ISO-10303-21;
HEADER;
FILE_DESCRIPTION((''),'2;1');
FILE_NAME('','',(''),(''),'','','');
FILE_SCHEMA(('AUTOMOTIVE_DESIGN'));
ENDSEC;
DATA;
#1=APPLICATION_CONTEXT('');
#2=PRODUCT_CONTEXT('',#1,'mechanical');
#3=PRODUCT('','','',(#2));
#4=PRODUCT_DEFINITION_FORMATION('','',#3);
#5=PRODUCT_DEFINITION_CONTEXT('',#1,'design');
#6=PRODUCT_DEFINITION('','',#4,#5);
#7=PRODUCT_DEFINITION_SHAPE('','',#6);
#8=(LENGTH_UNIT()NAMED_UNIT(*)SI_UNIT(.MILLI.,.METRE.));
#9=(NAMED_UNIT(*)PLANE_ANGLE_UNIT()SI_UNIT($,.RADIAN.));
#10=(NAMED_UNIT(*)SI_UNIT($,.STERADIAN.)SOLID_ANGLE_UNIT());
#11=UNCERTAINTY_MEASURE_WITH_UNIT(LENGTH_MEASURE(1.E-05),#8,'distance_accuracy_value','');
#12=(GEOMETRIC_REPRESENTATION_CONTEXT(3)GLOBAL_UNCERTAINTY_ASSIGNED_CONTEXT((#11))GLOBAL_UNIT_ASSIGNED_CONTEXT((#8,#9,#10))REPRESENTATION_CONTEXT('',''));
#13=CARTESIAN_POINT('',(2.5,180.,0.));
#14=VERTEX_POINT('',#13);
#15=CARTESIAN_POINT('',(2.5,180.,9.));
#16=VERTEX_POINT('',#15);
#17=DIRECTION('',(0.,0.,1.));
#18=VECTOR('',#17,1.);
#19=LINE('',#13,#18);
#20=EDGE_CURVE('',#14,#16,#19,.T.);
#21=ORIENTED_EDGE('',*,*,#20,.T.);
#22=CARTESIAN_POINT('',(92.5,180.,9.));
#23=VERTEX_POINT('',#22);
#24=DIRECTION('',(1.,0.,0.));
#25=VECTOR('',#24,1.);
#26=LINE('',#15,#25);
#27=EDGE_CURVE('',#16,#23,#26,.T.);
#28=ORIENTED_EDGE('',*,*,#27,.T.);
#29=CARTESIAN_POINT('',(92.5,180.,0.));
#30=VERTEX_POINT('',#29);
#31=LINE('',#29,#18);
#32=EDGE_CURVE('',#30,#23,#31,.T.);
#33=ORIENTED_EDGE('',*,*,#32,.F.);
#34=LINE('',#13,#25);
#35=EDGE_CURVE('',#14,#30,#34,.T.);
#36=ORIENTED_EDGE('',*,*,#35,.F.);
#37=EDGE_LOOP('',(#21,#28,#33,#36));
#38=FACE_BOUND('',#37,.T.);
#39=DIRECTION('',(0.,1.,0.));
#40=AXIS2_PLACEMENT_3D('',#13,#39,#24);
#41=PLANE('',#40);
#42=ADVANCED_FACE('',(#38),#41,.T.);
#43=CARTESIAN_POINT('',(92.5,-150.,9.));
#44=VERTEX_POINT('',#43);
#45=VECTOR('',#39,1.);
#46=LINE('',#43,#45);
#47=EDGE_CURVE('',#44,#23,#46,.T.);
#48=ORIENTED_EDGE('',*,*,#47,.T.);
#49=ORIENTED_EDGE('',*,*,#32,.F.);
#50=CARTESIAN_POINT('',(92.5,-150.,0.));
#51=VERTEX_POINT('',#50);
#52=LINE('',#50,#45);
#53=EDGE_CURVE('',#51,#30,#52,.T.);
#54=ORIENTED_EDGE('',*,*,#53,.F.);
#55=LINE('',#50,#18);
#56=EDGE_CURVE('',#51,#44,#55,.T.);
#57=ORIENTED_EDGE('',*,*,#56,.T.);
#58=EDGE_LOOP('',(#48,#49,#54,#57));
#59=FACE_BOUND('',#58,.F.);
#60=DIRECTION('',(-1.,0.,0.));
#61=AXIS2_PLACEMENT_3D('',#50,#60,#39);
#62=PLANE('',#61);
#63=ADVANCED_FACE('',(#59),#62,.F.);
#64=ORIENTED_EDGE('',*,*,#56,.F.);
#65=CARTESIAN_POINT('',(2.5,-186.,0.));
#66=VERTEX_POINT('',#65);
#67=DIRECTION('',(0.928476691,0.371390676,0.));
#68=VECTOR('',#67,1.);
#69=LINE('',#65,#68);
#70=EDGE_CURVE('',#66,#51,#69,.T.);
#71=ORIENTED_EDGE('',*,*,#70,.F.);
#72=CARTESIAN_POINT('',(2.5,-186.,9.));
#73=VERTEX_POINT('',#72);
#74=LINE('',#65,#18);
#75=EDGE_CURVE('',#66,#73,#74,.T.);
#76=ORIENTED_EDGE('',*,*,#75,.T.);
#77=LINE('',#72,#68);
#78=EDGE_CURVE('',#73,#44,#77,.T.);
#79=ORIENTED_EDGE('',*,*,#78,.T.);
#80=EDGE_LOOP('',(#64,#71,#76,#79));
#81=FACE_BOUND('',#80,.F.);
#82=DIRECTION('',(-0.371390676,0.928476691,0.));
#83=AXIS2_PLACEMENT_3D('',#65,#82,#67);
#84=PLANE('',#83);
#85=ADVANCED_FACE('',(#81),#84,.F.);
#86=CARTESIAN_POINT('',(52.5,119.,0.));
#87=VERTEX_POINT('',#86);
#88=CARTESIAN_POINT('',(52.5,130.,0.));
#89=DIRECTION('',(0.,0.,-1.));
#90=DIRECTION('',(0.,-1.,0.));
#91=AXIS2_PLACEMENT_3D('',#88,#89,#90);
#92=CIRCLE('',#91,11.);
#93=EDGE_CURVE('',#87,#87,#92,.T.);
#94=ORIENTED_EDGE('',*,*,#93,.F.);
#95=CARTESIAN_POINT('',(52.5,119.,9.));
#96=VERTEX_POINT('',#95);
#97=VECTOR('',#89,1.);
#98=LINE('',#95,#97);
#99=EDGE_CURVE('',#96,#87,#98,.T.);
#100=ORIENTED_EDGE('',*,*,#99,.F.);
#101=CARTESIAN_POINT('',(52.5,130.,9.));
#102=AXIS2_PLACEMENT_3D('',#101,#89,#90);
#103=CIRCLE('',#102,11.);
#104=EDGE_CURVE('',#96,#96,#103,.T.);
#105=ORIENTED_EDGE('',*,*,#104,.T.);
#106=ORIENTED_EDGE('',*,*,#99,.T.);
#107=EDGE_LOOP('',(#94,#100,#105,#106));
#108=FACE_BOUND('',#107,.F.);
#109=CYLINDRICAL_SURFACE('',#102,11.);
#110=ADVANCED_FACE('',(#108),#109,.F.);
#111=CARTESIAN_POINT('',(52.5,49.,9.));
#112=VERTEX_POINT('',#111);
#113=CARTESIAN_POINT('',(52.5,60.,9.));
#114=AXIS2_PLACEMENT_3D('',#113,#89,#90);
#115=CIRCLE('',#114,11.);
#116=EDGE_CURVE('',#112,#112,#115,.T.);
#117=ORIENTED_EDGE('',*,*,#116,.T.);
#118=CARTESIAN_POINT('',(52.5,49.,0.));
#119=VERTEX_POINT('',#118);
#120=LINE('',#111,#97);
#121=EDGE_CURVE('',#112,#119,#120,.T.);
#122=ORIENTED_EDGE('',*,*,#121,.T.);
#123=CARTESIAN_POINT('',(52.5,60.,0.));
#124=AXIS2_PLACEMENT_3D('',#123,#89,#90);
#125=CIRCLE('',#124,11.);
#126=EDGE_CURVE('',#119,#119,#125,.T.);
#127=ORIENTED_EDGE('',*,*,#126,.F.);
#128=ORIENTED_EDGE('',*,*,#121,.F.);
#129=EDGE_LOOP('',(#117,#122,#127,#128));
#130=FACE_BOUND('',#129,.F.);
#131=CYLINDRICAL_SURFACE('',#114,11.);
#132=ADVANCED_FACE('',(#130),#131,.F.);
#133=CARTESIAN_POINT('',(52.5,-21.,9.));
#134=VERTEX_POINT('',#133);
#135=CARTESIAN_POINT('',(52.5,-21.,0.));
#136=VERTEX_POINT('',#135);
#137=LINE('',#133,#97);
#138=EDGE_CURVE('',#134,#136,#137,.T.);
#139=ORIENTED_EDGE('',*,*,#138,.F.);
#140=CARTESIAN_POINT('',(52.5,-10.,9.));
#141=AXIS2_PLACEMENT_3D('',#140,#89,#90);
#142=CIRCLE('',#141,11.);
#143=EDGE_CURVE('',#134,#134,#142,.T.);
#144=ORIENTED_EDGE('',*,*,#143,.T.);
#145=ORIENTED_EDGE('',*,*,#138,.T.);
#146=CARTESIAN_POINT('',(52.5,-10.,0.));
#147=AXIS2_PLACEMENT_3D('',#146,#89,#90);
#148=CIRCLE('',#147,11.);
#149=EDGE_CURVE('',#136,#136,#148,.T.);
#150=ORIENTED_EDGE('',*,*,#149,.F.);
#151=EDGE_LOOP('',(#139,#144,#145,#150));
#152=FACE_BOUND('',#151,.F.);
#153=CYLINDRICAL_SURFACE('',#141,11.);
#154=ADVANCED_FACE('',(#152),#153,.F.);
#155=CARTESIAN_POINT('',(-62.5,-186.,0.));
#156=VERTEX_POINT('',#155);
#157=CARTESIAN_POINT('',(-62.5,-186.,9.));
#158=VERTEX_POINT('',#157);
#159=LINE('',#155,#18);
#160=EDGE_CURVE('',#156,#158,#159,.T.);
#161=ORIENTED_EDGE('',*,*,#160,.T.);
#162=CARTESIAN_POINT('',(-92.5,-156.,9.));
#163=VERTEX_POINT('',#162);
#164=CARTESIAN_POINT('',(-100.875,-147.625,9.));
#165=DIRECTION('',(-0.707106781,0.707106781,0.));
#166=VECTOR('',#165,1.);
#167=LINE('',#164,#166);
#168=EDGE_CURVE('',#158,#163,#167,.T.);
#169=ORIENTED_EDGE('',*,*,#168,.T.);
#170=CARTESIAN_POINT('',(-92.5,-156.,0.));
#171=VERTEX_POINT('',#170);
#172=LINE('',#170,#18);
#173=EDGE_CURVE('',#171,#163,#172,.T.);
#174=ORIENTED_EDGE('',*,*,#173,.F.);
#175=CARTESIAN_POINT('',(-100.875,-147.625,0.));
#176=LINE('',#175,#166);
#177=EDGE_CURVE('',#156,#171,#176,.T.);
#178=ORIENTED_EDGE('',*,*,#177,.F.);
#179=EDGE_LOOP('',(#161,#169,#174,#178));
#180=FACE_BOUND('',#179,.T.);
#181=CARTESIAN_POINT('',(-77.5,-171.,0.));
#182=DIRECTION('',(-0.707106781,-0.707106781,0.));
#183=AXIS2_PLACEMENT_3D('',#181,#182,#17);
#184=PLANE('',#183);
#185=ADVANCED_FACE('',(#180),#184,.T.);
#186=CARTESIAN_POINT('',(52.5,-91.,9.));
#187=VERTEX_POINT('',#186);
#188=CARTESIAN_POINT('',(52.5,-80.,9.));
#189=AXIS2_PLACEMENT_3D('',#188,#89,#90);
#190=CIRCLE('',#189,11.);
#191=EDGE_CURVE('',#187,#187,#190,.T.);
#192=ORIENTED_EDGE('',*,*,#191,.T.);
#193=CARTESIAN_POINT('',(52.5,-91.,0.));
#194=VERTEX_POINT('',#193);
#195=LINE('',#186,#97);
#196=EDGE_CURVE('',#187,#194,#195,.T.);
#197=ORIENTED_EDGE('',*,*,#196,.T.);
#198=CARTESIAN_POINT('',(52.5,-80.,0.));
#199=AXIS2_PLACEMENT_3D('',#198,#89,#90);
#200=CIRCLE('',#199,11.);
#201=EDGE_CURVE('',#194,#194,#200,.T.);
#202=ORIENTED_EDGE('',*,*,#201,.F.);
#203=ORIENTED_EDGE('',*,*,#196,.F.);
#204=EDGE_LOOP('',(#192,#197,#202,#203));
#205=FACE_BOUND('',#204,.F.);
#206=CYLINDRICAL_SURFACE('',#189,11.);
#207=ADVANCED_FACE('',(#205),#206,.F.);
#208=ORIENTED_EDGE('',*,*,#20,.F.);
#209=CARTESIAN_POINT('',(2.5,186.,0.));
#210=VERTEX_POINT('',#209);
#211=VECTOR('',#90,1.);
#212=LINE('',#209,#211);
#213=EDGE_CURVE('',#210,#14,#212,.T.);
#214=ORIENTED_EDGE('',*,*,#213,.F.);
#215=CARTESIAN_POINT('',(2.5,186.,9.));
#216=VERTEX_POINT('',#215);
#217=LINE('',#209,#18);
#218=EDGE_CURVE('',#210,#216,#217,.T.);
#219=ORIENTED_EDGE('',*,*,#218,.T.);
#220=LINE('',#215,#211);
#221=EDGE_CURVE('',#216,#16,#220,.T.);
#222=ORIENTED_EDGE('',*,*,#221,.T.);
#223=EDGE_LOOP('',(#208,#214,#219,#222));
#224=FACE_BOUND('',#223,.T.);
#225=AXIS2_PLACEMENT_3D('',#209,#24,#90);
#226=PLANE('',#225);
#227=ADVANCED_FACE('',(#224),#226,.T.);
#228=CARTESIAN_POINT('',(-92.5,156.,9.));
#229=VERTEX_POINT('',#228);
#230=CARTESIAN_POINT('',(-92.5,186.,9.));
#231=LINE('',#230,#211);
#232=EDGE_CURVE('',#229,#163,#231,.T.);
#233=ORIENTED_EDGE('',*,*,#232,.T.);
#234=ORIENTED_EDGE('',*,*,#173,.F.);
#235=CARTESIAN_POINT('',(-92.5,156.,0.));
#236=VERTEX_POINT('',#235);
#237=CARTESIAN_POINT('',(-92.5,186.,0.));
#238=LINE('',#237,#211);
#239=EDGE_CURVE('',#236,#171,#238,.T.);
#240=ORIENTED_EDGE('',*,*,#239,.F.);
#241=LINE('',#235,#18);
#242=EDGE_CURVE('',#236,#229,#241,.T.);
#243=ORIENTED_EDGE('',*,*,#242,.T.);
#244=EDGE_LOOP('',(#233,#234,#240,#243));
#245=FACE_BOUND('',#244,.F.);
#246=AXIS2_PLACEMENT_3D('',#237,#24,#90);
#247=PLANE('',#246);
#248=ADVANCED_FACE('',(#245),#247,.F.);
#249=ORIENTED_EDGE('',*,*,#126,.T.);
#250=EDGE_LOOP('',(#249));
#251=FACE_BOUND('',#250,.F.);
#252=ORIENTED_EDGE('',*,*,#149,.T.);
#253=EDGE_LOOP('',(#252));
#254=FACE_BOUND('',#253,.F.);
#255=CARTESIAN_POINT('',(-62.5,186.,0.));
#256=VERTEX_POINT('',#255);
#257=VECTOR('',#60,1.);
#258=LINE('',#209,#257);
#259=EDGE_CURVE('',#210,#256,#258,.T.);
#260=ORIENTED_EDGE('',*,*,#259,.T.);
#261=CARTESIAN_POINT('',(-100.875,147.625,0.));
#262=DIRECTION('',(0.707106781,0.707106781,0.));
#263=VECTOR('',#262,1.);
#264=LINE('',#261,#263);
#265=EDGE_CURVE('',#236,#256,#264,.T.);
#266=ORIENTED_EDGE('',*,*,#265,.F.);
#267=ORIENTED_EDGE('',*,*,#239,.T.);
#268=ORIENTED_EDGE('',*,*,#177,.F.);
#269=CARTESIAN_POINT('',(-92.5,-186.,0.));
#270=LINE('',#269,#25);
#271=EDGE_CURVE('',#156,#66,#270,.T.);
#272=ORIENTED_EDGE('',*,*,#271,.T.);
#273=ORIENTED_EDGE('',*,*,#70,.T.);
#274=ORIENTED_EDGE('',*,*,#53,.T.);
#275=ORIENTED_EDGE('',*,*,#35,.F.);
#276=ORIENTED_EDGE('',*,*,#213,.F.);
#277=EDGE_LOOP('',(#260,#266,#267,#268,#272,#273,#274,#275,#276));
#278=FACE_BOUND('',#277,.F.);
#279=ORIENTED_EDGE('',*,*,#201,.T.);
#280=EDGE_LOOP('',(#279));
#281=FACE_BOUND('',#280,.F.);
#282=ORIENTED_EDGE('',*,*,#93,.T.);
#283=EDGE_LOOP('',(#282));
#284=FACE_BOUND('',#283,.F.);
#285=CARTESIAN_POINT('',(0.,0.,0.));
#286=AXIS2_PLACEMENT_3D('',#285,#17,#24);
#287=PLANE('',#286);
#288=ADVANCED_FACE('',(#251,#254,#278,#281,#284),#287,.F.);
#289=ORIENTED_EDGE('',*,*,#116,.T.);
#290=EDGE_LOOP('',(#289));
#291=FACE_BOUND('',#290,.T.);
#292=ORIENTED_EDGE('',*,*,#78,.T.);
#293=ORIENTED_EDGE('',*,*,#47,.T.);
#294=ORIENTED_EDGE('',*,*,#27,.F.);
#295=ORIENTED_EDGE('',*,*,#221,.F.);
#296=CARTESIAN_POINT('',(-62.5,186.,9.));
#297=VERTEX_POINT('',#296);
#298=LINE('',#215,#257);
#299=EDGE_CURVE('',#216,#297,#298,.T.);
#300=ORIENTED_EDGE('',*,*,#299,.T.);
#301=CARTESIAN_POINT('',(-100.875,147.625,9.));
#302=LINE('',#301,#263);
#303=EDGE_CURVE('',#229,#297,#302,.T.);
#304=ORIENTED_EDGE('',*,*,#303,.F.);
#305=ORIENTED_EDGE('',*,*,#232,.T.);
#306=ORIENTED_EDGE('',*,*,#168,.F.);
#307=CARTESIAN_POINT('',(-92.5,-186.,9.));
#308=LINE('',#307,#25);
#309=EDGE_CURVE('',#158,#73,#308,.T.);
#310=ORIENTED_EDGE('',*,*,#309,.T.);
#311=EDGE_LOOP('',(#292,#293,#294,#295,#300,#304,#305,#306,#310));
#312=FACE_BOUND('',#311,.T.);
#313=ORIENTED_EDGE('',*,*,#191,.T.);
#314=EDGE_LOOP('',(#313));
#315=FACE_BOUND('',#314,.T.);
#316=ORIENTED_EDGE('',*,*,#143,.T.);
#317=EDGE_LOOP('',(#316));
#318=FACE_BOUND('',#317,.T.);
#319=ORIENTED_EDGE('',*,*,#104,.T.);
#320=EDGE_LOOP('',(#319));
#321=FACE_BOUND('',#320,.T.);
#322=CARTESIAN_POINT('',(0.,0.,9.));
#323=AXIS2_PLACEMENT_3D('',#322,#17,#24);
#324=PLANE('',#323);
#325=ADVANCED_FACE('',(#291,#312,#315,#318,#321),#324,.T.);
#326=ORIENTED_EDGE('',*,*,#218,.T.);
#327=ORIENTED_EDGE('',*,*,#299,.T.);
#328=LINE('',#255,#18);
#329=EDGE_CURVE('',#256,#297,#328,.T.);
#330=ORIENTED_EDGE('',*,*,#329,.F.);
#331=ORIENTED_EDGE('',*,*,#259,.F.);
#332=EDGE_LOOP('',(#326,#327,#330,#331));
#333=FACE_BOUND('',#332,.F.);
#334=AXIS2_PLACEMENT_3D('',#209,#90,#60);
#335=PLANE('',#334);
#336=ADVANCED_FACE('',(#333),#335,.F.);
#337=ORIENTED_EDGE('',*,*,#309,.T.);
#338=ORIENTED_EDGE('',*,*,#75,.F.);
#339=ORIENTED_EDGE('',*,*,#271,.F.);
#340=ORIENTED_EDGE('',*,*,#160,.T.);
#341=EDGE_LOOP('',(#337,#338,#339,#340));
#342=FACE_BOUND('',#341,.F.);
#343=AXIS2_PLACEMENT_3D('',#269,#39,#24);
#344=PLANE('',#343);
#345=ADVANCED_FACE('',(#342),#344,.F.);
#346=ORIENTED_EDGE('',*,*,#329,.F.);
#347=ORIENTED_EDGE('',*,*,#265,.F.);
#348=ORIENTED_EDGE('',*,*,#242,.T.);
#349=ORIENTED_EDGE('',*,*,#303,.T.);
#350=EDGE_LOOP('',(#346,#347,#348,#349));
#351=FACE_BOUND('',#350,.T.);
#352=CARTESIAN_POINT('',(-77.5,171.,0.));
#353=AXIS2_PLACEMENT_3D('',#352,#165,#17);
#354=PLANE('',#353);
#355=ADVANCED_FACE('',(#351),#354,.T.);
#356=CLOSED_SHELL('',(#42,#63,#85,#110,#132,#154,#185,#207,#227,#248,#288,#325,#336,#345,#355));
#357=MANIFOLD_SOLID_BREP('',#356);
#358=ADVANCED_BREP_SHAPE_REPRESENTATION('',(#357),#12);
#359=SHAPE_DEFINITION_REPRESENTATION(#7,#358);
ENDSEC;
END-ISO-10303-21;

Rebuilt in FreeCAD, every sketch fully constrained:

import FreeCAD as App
import Part
import Sketcher

V = App.Vector


def edges_at(feature, points):
    """Names of the edges that pass closest to the given points."""
    edges = feature.Shape.Edges
    near = lambda p: min(range(len(edges)), key=lambda i: edges[i].distToShape(Part.Vertex(*p))[0])
    return sorted({f"Edge{near(p) + 1}" for p in points})


def add_polygon(sketch, points):
    """Adds a closed chain of lines whose ends are joined by coincident constraints."""
    first, n = sketch.GeometryCount, len(points)
    for a, b in zip(points, points[1:] + points[:1]):
        sketch.addGeometry(Part.LineSegment(App.Vector(*a, 0), App.Vector(*b, 0)), False)
    for i in range(n):
        sketch.addConstraint(Sketcher.Constraint("Coincident", first + i, 2, first + (i + 1) % n, 1))

doc = App.newDocument("Part")
body = doc.addObject("PartDesign::Body", "Body")

sketch1 = body.newObject("Sketcher::SketchObject", "Sketch")
sketch1.AttachmentSupport = (doc.getObject("XY_Plane"), [""])
sketch1.MapMode = "FlatFace"
add_polygon(sketch1, [(2.5, 180), (2.5, 186), (-92.5, 186), (-92.5, -186), (2.5, -186), (92.5, -150), (92.5, 180)])
sketch1.addConstraint([
    Sketcher.Constraint("Vertical", 0),
    Sketcher.Constraint("Horizontal", 1),
    Sketcher.Constraint("Vertical", 2),
    Sketcher.Constraint("Horizontal", 3),
    Sketcher.Constraint("Vertical", 5),
    Sketcher.Constraint("Horizontal", 6),
    Sketcher.Constraint("Symmetric", 0, 2, 3, 2, -1),
    Sketcher.Constraint("DistanceX", 1, 2, 1, 1, 95.0),
    Sketcher.Constraint("DistanceY", 2, 2, 2, 1, 372.0),
    Sketcher.Constraint("DistanceX", 6, 2, 6, 1, 90.0),
    Sketcher.Constraint("DistanceY", 0, 1, 0, 2, 6.0),
    Sketcher.Constraint("DistanceY", 5, 1, 5, 2, 330.0),
    Sketcher.Constraint("DistanceX", -1, 1, 0, 2, 2.5),
])
pad1 = body.newObject("PartDesign::Pad", "Pad")
pad1.Profile = sketch1
pad1.Length = 9
doc.recompute()

chamfer = body.newObject("PartDesign::Chamfer", "Chamfer")
chamfer.Base = (pad1, edges_at(pad1, [(-92.5, -186, 4.5), (-92.5, 186, 4.5)]))
chamfer.Size = 30

sketch2 = body.newObject("Sketcher::SketchObject", "Sketch001")
sketch2.AttachmentSupport = (doc.getObject("XY_Plane"), [""])
sketch2.MapMode = "FlatFace"
sketch2.AttachmentOffset = App.Placement(V(0, 0, 9), App.Rotation())
sketch2.addGeometry([
    Part.Circle(V(52.5, 130, 0), V(0, 0, 1), 11),
    Part.Circle(V(52.5, 60, 0), V(0, 0, 1), 11),
    Part.Circle(V(52.5, -10, 0), V(0, 0, 1), 11),
    Part.Circle(V(52.5, -80, 0), V(0, 0, 1), 11),
], False)
sketch2.addConstraint([
    Sketcher.Constraint("Equal", 0, 1),
    Sketcher.Constraint("Equal", 1, 2),
    Sketcher.Constraint("Equal", 2, 3),
    Sketcher.Constraint("Vertical", 0, 3, 1, 3),
    Sketcher.Constraint("Vertical", 1, 3, 2, 3),
    Sketcher.Constraint("Vertical", 2, 3, 3, 3),
    Sketcher.Constraint("Diameter", 0, 22.0),
    Sketcher.Constraint("DistanceY", -1, 1, 0, 3, 130.0),
    Sketcher.Constraint("DistanceY", -1, 1, 1, 3, 60.0),
    Sketcher.Constraint("DistanceY", 2, 3, -1, 1, 10.0),
    Sketcher.Constraint("DistanceY", 3, 3, -1, 1, 80.0),
    Sketcher.Constraint("DistanceX", -1, 1, 0, 3, 52.5),
])
doc.recompute()
hole = body.newObject("PartDesign::Hole", "Hole")
hole.Profile = sketch2
hole.ThreadType = "None"
hole.Diameter = 22
hole.DepthType = "ThroughAll"

doc.recompute()
